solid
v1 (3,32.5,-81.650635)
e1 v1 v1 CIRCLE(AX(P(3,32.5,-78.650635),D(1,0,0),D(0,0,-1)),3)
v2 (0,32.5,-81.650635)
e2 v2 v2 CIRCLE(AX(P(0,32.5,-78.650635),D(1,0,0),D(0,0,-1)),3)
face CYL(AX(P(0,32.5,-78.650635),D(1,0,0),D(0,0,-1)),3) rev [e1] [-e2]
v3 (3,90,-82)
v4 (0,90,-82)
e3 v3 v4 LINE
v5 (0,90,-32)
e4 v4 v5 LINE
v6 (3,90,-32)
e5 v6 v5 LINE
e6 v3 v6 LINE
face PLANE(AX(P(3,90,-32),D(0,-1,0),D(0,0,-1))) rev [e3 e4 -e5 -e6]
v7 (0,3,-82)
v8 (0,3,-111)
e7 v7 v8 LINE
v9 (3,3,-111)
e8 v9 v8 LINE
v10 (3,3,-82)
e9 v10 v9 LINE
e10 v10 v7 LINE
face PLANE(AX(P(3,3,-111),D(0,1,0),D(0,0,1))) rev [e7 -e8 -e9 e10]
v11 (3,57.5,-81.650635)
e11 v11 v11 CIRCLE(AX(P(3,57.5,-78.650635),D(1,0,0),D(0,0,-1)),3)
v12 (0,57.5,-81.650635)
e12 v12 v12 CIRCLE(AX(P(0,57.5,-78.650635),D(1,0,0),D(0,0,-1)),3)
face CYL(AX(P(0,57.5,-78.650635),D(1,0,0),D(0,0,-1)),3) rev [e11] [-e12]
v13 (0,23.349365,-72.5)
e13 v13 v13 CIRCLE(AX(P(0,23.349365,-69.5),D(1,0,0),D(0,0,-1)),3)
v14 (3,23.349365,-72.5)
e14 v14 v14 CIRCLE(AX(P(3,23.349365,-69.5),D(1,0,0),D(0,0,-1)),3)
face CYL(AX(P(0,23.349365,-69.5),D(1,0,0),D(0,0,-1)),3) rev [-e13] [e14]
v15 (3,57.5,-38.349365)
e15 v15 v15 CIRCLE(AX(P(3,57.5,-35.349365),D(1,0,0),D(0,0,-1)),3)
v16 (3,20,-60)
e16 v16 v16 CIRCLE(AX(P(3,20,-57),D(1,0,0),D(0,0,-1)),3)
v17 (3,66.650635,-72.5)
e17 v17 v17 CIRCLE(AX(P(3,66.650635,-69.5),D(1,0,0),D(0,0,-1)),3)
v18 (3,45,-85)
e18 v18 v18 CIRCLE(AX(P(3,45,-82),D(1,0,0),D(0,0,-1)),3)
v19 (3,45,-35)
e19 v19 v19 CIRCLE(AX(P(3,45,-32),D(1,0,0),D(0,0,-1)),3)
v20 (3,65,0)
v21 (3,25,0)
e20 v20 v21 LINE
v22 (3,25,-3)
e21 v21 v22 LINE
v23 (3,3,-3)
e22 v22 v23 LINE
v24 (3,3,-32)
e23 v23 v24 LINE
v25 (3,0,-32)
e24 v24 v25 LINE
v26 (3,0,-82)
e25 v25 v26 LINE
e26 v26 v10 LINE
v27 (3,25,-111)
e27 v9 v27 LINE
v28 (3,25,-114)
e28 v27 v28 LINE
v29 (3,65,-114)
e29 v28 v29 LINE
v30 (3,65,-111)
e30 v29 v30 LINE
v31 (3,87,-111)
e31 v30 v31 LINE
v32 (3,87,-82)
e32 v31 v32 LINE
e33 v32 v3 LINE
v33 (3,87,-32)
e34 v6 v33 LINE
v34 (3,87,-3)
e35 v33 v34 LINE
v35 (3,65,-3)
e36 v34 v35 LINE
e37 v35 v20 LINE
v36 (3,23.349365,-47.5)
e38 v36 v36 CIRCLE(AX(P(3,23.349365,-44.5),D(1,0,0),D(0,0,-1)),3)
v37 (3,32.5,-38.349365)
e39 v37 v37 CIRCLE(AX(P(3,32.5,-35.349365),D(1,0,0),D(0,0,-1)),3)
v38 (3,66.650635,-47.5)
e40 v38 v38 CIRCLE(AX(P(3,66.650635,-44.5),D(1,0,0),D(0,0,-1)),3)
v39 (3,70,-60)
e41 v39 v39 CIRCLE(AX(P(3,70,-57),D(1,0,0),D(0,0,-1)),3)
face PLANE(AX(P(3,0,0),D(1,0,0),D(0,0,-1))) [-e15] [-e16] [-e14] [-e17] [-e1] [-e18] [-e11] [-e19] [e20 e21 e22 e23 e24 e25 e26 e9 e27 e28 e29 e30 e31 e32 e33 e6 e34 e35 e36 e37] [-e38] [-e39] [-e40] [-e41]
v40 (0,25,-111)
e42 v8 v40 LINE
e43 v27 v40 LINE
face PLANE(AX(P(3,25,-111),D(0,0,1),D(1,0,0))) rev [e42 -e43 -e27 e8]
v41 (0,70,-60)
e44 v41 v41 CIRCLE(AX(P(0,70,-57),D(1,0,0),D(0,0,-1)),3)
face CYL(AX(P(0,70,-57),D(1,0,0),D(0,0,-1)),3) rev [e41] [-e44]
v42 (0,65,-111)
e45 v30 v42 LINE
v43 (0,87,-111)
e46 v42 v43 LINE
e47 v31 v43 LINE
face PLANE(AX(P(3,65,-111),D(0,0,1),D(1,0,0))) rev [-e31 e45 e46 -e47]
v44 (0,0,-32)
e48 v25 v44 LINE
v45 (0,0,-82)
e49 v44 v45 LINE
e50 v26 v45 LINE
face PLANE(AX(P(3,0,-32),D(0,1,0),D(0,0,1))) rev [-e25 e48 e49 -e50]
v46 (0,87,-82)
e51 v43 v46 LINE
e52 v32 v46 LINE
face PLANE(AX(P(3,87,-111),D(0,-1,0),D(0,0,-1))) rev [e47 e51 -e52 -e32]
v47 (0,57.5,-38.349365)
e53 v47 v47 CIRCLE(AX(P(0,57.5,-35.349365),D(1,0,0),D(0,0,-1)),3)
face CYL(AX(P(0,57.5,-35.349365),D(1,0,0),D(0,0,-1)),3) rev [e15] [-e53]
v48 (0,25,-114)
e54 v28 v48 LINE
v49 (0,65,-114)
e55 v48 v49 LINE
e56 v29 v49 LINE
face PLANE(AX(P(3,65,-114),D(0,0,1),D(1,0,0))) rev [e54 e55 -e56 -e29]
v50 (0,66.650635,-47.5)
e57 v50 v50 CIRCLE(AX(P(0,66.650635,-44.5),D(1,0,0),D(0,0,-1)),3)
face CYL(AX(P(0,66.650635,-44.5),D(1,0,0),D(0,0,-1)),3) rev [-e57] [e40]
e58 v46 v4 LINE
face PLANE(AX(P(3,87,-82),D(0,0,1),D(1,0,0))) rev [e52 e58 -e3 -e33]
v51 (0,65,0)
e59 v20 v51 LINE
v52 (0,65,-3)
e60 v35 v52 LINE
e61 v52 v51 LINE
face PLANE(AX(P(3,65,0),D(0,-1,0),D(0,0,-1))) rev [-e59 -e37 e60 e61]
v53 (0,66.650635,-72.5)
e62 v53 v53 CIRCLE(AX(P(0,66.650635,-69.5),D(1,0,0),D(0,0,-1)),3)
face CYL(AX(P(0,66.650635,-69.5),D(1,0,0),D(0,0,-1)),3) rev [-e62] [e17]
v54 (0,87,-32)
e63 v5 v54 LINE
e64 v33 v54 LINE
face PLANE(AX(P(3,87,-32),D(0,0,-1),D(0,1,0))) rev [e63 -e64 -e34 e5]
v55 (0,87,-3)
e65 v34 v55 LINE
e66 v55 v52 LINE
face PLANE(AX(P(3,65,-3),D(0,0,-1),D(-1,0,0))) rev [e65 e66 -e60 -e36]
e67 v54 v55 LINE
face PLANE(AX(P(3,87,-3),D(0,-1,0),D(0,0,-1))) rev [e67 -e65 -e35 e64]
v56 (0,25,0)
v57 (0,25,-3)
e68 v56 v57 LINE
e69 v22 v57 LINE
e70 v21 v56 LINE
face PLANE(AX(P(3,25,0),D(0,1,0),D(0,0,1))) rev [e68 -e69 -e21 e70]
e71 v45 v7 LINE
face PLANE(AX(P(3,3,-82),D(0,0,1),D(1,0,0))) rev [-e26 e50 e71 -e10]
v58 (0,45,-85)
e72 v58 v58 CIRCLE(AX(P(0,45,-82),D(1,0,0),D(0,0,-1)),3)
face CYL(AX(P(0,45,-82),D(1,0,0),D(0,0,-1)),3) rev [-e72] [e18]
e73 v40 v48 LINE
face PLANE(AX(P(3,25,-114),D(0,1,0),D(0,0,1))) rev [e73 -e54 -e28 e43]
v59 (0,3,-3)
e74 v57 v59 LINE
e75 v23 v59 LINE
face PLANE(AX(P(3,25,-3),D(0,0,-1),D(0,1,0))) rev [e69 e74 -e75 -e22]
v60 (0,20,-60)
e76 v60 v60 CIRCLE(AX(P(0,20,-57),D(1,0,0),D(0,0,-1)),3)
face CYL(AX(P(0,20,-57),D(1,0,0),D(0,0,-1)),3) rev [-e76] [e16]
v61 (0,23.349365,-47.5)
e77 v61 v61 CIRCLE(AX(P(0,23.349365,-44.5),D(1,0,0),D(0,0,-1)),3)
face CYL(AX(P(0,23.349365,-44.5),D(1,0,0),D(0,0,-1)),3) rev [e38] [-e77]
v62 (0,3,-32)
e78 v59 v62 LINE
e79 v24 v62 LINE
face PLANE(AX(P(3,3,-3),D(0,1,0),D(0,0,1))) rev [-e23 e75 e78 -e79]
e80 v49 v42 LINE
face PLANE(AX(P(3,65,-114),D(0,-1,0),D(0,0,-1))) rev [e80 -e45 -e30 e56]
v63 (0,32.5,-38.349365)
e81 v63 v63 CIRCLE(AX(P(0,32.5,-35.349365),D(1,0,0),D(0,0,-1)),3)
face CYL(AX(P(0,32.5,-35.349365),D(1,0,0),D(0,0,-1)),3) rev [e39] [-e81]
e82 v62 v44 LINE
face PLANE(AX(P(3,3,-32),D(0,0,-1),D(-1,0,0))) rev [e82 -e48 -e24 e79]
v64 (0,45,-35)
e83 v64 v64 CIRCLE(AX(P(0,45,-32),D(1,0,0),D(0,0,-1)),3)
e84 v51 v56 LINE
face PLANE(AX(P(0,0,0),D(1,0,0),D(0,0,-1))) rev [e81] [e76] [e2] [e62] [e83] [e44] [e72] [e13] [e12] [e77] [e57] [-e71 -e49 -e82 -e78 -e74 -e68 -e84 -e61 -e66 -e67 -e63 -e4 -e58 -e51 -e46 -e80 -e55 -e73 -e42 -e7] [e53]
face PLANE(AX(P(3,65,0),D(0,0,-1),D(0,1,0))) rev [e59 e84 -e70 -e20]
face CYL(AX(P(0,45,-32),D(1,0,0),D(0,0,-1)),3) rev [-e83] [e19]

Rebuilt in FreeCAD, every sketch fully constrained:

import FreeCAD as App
import Part
import Sketcher
from FreeCAD import Vector

doc = App.newDocument("Part")
body = doc.addObject("PartDesign::Body", "Body")

# Sketch on YZ plane
sketch1 = body.newObject("Sketcher::SketchObject", "Sketch")
sketch1.AttachmentSupport = (doc.getObject("YZ_Plane"), [""])
sketch1.MapMode = "FlatFace"
sketch1.addGeometry([
    Part.LineSegment(Vector(65, 0, 0), Vector(25, 0, 0)),  # 0
    Part.LineSegment(Vector(25, 0, 0), Vector(25, -3, 0)),  # 1
    Part.LineSegment(Vector(25, -3, 0), Vector(3, -3, 0)),  # 2
    Part.LineSegment(Vector(3, -3, 0), Vector(3, -32, 0)),  # 3
    Part.LineSegment(Vector(3, -32, 0), Vector(0, -32, 0)),  # 4
    Part.LineSegment(Vector(0, -32, 0), Vector(0, -82, 0)),  # 5
    Part.LineSegment(Vector(0, -82, 0), Vector(3, -82, 0)),  # 6
    Part.LineSegment(Vector(3, -82, 0), Vector(3, -111, 0)),  # 7
    Part.LineSegment(Vector(3, -111, 0), Vector(25, -111, 0)),  # 8
    Part.LineSegment(Vector(25, -111, 0), Vector(25, -114, 0)),  # 9
    Part.LineSegment(Vector(25, -114, 0), Vector(65, -114, 0)),  # 10
    Part.LineSegment(Vector(65, -114, 0), Vector(65, -111, 0)),  # 11
    Part.LineSegment(Vector(65, -111, 0), Vector(87, -111, 0)),  # 12
    Part.LineSegment(Vector(87, -111, 0), Vector(87, -82, 0)),  # 13
    Part.LineSegment(Vector(87, -82, 0), Vector(90, -82, 0)),  # 14
    Part.LineSegment(Vector(90, -82, 0), Vector(90, -32, 0)),  # 15
    Part.LineSegment(Vector(90, -32, 0), Vector(87, -32, 0)),  # 16
    Part.LineSegment(Vector(87, -32, 0), Vector(87, -3, 0)),  # 17
    Part.LineSegment(Vector(87, -3, 0), Vector(65, -3, 0)),  # 18
    Part.LineSegment(Vector(65, -3, 0), Vector(65, 0, 0)),  # 19
], False)
sketch1.addConstraint([
    Sketcher.Constraint("Coincident", 0, 2, 1, 1),
    Sketcher.Constraint("Coincident", 1, 2, 2, 1),
    Sketcher.Constraint("Coincident", 2, 2, 3, 1),
    Sketcher.Constraint("Coincident", 3, 2, 4, 1),
    Sketcher.Constraint("Coincident", 4, 2, 5, 1),
    Sketcher.Constraint("Coincident", 5, 2, 6, 1),
    Sketcher.Constraint("Coincident", 6, 2, 7, 1),
    Sketcher.Constraint("Coincident", 7, 2, 8, 1),
    Sketcher.Constraint("Coincident", 8, 2, 9, 1),
    Sketcher.Constraint("Coincident", 9, 2, 10, 1),
    Sketcher.Constraint("Coincident", 10, 2, 11, 1),
    Sketcher.Constraint("Coincident", 11, 2, 12, 1),
    Sketcher.Constraint("Coincident", 12, 2, 13, 1),
    Sketcher.Constraint("Coincident", 13, 2, 14, 1),
    Sketcher.Constraint("Coincident", 14, 2, 15, 1),
    Sketcher.Constraint("Coincident", 15, 2, 16, 1),
    Sketcher.Constraint("Coincident", 16, 2, 17, 1),
    Sketcher.Constraint("Coincident", 17, 2, 18, 1),
    Sketcher.Constraint("Coincident", 18, 2, 19, 1),
    Sketcher.Constraint("Coincident", 19, 2, 0, 1),
    Sketcher.Constraint("Horizontal", 0),
    Sketcher.Constraint("Vertical", 1),
    Sketcher.Constraint("Horizontal", 2),
    Sketcher.Constraint("Vertical", 3),
    Sketcher.Constraint("Horizontal", 4),
    Sketcher.Constraint("Vertical", 5),
    Sketcher.Constraint("Horizontal", 6),
    Sketcher.Constraint("Vertical", 7),
    Sketcher.Constraint("Horizontal", 8),
    Sketcher.Constraint("Vertical", 9),
    Sketcher.Constraint("Horizontal", 10),
    Sketcher.Constraint("Vertical", 11),
    Sketcher.Constraint("Horizontal", 12),
    Sketcher.Constraint("Vertical", 13),
    Sketcher.Constraint("Horizontal", 14),
    Sketcher.Constraint("Vertical", 15),
    Sketcher.Constraint("Horizontal", 16),
    Sketcher.Constraint("Vertical", 17),
    Sketcher.Constraint("Horizontal", 18),
    Sketcher.Constraint("Vertical", 19),
    Sketcher.Constraint("PointOnObject", 0, 2, -1),
    Sketcher.Constraint("PointOnObject", 4, 2, -2),
    Sketcher.Constraint("Horizontal", 8, 2, 11, 2),
    Sketcher.Constraint("Horizontal", 6, 2, 13, 2),
    Sketcher.Constraint("Horizontal", 4, 2, 15, 2),
    Sketcher.Constraint("Horizontal", 2, 2, 17, 2),
    Sketcher.Constraint("Vertical", 3, 2, 6, 2),
    Sketcher.Constraint("Vertical", 1, 2, 8, 2),
    Sketcher.Constraint("Vertical", 13, 2, 16, 2),
    Sketcher.Constraint("Vertical", 11, 2, 18, 2),
    Sketcher.Constraint("Equal", 8, 12),
    Sketcher.Constraint("Equal", 6, 14),
    Sketcher.Constraint("Equal", 16, 1),
    Sketcher.Constraint("Equal", 3, 7),
    Sketcher.Constraint("Equal", 1, 9),
    Sketcher.Constraint("DistanceX", 0, 2, 0, 1, 40.0),
    Sketcher.Constraint("DistanceX", 2, 2, 2, 1, 22.0),
    Sketcher.Constraint("DistanceX", 4, 2, 4, 1, 3.0),
    Sketcher.Constraint("DistanceY", 3, 2, 3, 1, 29.0),
    Sketcher.Constraint("DistanceY", 5, 2, 5, 1, 50.0),
])
pad1 = body.newObject("PartDesign::Pad", "Pad")
pad1.Profile = sketch1
pad1.Length = 3

# Sketch on YZ plane
sketch2 = body.newObject("Sketcher::SketchObject", "Sketch001")
sketch2.AttachmentSupport = (doc.getObject("YZ_Plane"), [""])
sketch2.MapMode = "FlatFace"
sketch2.AttachmentOffset = App.Placement(Vector(0, 0, 3), App.Rotation())
sketch2.addGeometry([
    Part.Circle(Vector(45, -32, 0), Vector(0, 0, 1), 3),  # 0
    Part.Circle(Vector(57.5, -35.3, 0), Vector(0, 0, 1), 3),  # 1
    Part.Circle(Vector(66.7, -44.5, 0), Vector(0, 0, 1), 3),  # 2
    Part.Circle(Vector(70, -57, 0), Vector(0, 0, 1), 3),  # 3
    Part.Circle(Vector(66.7, -69.5, 0), Vector(0, 0, 1), 3),  # 4
    Part.Circle(Vector(57.5, -78.7, 0), Vector(0, 0, 1), 3),  # 5
    Part.Circle(Vector(45, -82, 0), Vector(0, 0, 1), 3),  # 6
    Part.Circle(Vector(32.5, -78.7, 0), Vector(0, 0, 1), 3),  # 7
    Part.Circle(Vector(23.3, -69.5, 0), Vector(0, 0, 1), 3),  # 8
    Part.Circle(Vector(20, -57, 0), Vector(0, 0, 1), 3),  # 9
    Part.Circle(Vector(23.3, -44.5, 0), Vector(0, 0, 1), 3),  # 10
    Part.Circle(Vector(32.5, -35.3, 0), Vector(0, 0, 1), 3),  # 11
], False)
sketch2.addConstraint([
    Sketcher.Constraint("Equal", 0, 1),
    Sketcher.Constraint("Equal", 1, 2),
    Sketcher.Constraint("Equal", 2, 3),
    Sketcher.Constraint("Equal", 3, 4),
    Sketcher.Constraint("Equal", 4, 5),
    Sketcher.Constraint("Equal", 5, 6),
    Sketcher.Constraint("Equal", 6, 7),
    Sketcher.Constraint("Equal", 7, 8),
    Sketcher.Constraint("Equal", 8, 9),
    Sketcher.Constraint("Equal", 9, 10),
    Sketcher.Constraint("Equal", 10, 11),
    Sketcher.Constraint("Horizontal", 5, 3, 7, 3),
    Sketcher.Constraint("Horizontal", 4, 3, 8, 3),
    Sketcher.Constraint("Horizontal", 3, 3, 9, 3),
    Sketcher.Constraint("Horizontal", 2, 3, 10, 3),
    Sketcher.Constraint("Horizontal", 1, 3, 11, 3),
    Sketcher.Constraint("Vertical", 2, 3, 4, 3),
    Sketcher.Constraint("Vertical", 1, 3, 5, 3),
    Sketcher.Constraint("Vertical", 0, 3, 6, 3),
    Sketcher.Constraint("Vertical", 8, 3, 10, 3),
    Sketcher.Constraint("Vertical", 7, 3, 11, 3),
    Sketcher.Constraint("Diameter", 0, 6.0),
    Sketcher.Constraint("DistanceX", -1, 1, 0, 3, 45.0),
    Sketcher.Constraint("DistanceY", 0, 3, -1, 1, 32.0),
    Sketcher.Constraint("DistanceX", -1, 1, 3, 3, 70.0),
    Sketcher.Constraint("DistanceY", 3, 3, -1, 1, 57.0),
    Sketcher.Constraint("DistanceY", 6, 3, -1, 1, 82.0),
    Sketcher.Constraint("DistanceX", -1, 1, 9, 3, 20.0),
    Sketcher.Constraint("DistanceY", 4, 3, 2, 3, 25.0),
    Sketcher.Constraint("DistanceX", 7, 3, 5, 3, 25.0),
    Sketcher.Constraint("DistanceX", -1, 1, 1, 3, 57.5),
    Sketcher.Constraint("DistanceY", 2, 3, -1, 1, 44.5),
    Sketcher.Constraint("DistanceY", 5, 3, 1, 3, 43.30127),
    Sketcher.Constraint("DistanceX", 8, 3, 4, 3, 43.30127),
    Sketcher.Constraint("DistanceY", 1, 3, -1, 1, 35.349365),
    Sketcher.Constraint("DistanceX", -1, 1, 2, 3, 66.650635),
])
pocket1 = body.newObject("PartDesign::Pocket", "Pocket")
pocket1.Profile = sketch2
pocket1.Type = "ThroughAll"

doc.recompute()
